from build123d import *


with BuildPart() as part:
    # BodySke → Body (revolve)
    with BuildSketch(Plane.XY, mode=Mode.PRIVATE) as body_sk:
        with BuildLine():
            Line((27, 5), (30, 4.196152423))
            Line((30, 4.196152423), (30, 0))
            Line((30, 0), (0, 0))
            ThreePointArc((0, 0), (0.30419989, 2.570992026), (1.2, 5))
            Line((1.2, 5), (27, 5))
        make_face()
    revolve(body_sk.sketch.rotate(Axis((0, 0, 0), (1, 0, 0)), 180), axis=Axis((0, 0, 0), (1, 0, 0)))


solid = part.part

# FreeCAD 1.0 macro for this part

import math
import FreeCAD as App
import Part
import Sketcher
from FreeCAD import Vector
Q = App.Units.Quantity

doc = App.newDocument("Part")
params = doc.addObject("Spreadsheet::Sheet", "Params")
for row, (alias, value) in enumerate([
    ("sketch1_width", "30 mm"),
    ("sketch1_width2", "25.8 mm"),
    ("revolution_angle", "360 deg"),
], start=1):
    params.set(f"A{row}", alias)
    params.set(f"B{row}", "=" + value)
    params.setAlias(f"B{row}", alias)

body = doc.addObject("PartDesign::Body", "Body")

sketch1 = body.newObject("Sketcher::SketchObject", "Sketch")
sketch1.AttachmentSupport = (doc.getObject("XY_Plane"), [""])
sketch1.MapMode = "FlatFace"
sketch1.addGeometry([
    Part.LineSegment(Vector(30, 4.2, 0), Vector(27, 5, 0)),
    Part.LineSegment(Vector(27, 5, 0), Vector(1.2, 5, 0)),
    Part.ArcOfCircle(Part.Circle(Vector(11, 0, 0), Vector(0, 0, 1), 11), math.radians(153), math.radians(180)),
    Part.LineSegment(Vector(0, 0, 0), Vector(30, 0, 0)),
    Part.LineSegment(Vector(30, 0, 0), Vector(30, 4.2, 0)),
], False)
sketch1.addConstraint([
    Sketcher.Constraint("Coincident", 0, 2, 1, 1),
    Sketcher.Constraint("Coincident", 1, 2, 2, 1),
    Sketcher.Constraint("Coincident", 2, 2, 3, 1),
    Sketcher.Constraint("Coincident", 3, 2, 4, 1),
    Sketcher.Constraint("Coincident", 4, 2, 0, 1),
    Sketcher.Constraint("Horizontal", 1),
    Sketcher.Constraint("Horizontal", 3),
    Sketcher.Constraint("Vertical", 4),
    Sketcher.Constraint("Coincident", 2, 2, -1, 1),
    Sketcher.Constraint("PointOnObject", 2, 3, -1),
    Sketcher.Constraint("DistanceX", 3, 1, 3, 2, 30.0),
    Sketcher.Constraint("Angle", 0, Q("165 deg")),
    Sketcher.Constraint("DistanceX", 1, 2, 1, 1, 25.8),
    Sketcher.Constraint("DistanceX", -1, 1, 0, 2, 27.0),
    Sketcher.Constraint("DistanceY", -1, 1, 0, 2, 5.0),
])
sketch1.setExpression("Constraints[10]", "Params.sketch1_width")
sketch1.setExpression("Constraints[12]", "Params.sketch1_width2")
revolution = body.newObject("PartDesign::Revolution", "Revolution")
revolution.Profile = sketch1
revolution.ReferenceAxis = (sketch1, ["H_Axis"])
revolution.setExpression("Angle", "Params.revolution_angle")

doc.recompute()
